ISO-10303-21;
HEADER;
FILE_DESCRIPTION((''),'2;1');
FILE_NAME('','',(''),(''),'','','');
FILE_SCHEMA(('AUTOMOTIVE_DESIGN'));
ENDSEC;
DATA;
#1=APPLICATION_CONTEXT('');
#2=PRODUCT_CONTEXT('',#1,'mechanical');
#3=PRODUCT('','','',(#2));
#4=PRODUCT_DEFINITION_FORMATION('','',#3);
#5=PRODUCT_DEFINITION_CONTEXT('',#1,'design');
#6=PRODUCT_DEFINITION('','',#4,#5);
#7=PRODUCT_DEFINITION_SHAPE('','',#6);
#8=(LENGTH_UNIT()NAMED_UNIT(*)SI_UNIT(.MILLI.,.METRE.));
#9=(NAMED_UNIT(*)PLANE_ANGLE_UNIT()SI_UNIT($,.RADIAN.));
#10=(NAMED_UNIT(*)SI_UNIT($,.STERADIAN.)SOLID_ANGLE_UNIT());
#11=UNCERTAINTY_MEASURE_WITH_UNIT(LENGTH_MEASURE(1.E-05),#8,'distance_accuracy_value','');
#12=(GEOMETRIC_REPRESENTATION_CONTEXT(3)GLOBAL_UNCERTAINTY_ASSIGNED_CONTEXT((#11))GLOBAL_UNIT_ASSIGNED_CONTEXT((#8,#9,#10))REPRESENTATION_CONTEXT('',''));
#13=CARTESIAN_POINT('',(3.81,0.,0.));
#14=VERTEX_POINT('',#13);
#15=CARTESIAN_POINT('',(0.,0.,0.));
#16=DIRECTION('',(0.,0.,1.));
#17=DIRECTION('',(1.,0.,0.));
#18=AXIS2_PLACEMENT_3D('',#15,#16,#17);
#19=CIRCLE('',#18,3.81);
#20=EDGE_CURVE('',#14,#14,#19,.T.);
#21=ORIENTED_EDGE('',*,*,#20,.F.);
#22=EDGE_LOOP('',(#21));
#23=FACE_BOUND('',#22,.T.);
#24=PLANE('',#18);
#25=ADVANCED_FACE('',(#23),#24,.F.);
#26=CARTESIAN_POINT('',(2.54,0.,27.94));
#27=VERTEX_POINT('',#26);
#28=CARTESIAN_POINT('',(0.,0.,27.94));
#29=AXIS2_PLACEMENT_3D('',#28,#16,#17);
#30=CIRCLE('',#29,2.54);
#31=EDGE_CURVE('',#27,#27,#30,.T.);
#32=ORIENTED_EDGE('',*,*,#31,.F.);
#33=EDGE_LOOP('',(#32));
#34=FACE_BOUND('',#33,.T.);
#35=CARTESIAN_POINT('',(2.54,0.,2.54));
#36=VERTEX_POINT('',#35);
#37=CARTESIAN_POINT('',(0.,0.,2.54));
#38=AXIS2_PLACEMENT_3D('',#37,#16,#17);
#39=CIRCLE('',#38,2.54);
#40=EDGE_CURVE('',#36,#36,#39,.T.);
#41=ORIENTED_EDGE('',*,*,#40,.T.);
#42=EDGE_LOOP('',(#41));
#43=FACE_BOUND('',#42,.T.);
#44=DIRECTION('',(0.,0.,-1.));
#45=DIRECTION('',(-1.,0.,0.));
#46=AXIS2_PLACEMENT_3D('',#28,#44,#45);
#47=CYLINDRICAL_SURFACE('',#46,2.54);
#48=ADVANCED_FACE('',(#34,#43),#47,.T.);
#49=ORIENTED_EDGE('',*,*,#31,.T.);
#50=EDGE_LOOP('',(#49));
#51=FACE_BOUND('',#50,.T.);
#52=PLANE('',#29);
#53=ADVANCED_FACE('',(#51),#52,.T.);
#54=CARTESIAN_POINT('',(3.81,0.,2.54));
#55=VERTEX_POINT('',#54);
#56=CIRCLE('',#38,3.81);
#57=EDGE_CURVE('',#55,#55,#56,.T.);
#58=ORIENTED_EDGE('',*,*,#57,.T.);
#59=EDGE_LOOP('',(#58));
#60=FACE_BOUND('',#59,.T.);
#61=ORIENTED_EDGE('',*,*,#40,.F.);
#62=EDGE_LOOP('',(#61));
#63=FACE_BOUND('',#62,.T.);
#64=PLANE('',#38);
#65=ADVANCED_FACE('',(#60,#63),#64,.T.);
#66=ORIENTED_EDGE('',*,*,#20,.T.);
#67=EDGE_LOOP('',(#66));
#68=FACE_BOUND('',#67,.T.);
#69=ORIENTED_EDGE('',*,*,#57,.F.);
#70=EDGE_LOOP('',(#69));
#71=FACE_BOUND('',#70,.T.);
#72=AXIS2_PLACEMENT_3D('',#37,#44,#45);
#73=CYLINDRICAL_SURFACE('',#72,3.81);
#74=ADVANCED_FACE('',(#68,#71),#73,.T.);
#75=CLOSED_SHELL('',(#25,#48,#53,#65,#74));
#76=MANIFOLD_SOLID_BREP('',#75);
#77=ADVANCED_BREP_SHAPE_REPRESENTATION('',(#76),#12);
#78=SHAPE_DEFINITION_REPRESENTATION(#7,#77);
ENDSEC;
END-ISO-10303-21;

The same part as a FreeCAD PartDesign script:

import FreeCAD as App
import Part
import Sketcher

V = App.Vector
Q = App.Units.Quantity

doc = App.newDocument("Part")
body = doc.addObject("PartDesign::Body", "Body")

# Sketch on XY plane
sketch1 = body.newObject("Sketcher::SketchObject", "Sketch")
sketch1.AttachmentSupport = (doc.getObject("XY_Plane"), [""])
sketch1.MapMode = "FlatFace"
sketch1.addGeometry(Part.Circle(V(0, 0, 0), V(0, 0, 1), 3.8), False)
sketch1.addConstraint(Sketcher.Constraint("Coincident", 0, 3, -1, 1))
sketch1.addConstraint(Sketcher.Constraint("Diameter", 0, Q("0.3 in")))
pad1 = body.newObject("PartDesign::Pad", "Pad")
pad1.Profile = sketch1
pad1.Length = Q("0.1 in")

# Sketch on XY plane
sketch2 = body.newObject("Sketcher::SketchObject", "Sketch001")
sketch2.AttachmentSupport = (doc.getObject("XY_Plane"), [""])
sketch2.MapMode = "FlatFace"
sketch2.AttachmentOffset = App.Placement(V(0, 0, 0.1 * 25.4), App.Rotation())
sketch2.addGeometry(Part.Circle(V(0, 0, 0), V(0, 0, 1), 2.5), False)
sketch2.addConstraint(Sketcher.Constraint("Coincident", 0, 3, -1, 1))
sketch2.addConstraint(Sketcher.Constraint("Diameter", 0, Q("0.2 in")))
pad2 = body.newObject("PartDesign::Pad", "Pad001")
pad2.Profile = sketch2
pad2.Length = Q("1 in")

doc.recompute()
